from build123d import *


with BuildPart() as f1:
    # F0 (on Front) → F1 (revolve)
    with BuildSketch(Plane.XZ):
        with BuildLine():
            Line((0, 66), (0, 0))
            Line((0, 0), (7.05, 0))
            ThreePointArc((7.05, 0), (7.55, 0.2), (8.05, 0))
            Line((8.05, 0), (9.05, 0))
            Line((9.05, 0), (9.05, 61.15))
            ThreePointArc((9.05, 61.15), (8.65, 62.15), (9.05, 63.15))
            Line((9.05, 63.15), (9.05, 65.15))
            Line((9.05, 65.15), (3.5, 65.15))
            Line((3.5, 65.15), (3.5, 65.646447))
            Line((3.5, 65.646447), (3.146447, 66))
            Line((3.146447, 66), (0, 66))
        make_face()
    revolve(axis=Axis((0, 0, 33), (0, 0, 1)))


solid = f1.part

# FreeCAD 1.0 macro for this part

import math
import FreeCAD as App
import Part
import Sketcher

V = App.Vector
Q = App.Units.Quantity

doc = App.newDocument("Part")
body = doc.addObject("PartDesign::Body", "Body")

# Sketch on XZ plane
sketch1 = doc.addObject("Sketcher::SketchObject", "Sketch")
body.addObject(sketch1)
sketch1.AttachmentSupport = (doc.XZ_Plane, [""])
sketch1.MapMode = "FlatFace"
sketch1.addGeometry(Part.LineSegment(V(0, 66, 0), V(0, 0, 0)), False)
sketch1.addGeometry(Part.LineSegment(V(0, 0, 0), V(7.05, 0, 0)), False)
sketch1.addGeometry(Part.ArcOfCircle(Part.Circle(V(7.55, -0.525, 0), V(0, 0, 1), 0.725), math.radians(46.397181), math.radians(133.602819)), False)
sketch1.addGeometry(Part.LineSegment(V(8.05, 0, 0), V(9.05, 0, 0)), False)
sketch1.addGeometry(Part.LineSegment(V(9.05, 0, 0), V(9.05, 61.15, 0)), False)
sketch1.addGeometry(Part.ArcOfCircle(Part.Circle(V(10.1, 62.15, 0), V(0, 0, 1), 1.45), math.radians(136.397181), math.radians(223.602819)), False)
sketch1.addGeometry(Part.LineSegment(V(9.05, 63.15, 0), V(9.05, 65.15, 0)), False)
sketch1.addGeometry(Part.LineSegment(V(9.05, 65.15, 0), V(3.5, 65.15, 0)), False)
sketch1.addGeometry(Part.LineSegment(V(3.5, 65.15, 0), V(3.5, 65.646447, 0)), False)
sketch1.addGeometry(Part.LineSegment(V(3.5, 65.646447, 0), V(3.146447, 66, 0)), False)
sketch1.addGeometry(Part.LineSegment(V(3.146447, 66, 0), V(0, 66, 0)), False)
sketch1.addConstraint(Sketcher.Constraint("Coincident", 0, 2, 1, 1))
sketch1.addConstraint(Sketcher.Constraint("Coincident", 1, 2, 2, 2))
sketch1.addConstraint(Sketcher.Constraint("Coincident", 2, 1, 3, 1))
sketch1.addConstraint(Sketcher.Constraint("Coincident", 3, 2, 4, 1))
sketch1.addConstraint(Sketcher.Constraint("Coincident", 4, 2, 5, 2))
sketch1.addConstraint(Sketcher.Constraint("Coincident", 5, 1, 6, 1))
sketch1.addConstraint(Sketcher.Constraint("Coincident", 6, 2, 7, 1))
sketch1.addConstraint(Sketcher.Constraint("Coincident", 7, 2, 8, 1))
sketch1.addConstraint(Sketcher.Constraint("Coincident", 8, 2, 9, 1))
sketch1.addConstraint(Sketcher.Constraint("Coincident", 9, 2, 10, 1))
sketch1.addConstraint(Sketcher.Constraint("Coincident", 10, 2, 0, 1))
sketch1.addConstraint(Sketcher.Constraint("Vertical", 0))
sketch1.addConstraint(Sketcher.Constraint("Horizontal", 1))
sketch1.addConstraint(Sketcher.Constraint("Horizontal", 3))
sketch1.addConstraint(Sketcher.Constraint("Vertical", 4))
sketch1.addConstraint(Sketcher.Constraint("Vertical", 6))
sketch1.addConstraint(Sketcher.Constraint("Horizontal", 7))
sketch1.addConstraint(Sketcher.Constraint("Vertical", 8))
sketch1.addConstraint(Sketcher.Constraint("Horizontal", 10))
sketch1.addConstraint(Sketcher.Constraint("Coincident", 0, 2, -1, 1))
sketch1.addConstraint(Sketcher.Constraint("PointOnObject", 2, 1, -1))
sketch1.addConstraint(Sketcher.Constraint("Vertical", 4, 2, 5, 1))
sketch1.addConstraint(Sketcher.Constraint("DistanceX", 3, 1, 3, 2, Q("1 mm")))
sketch1.addConstraint(Sketcher.Constraint("DistanceY", 0, 2, 0, 1, Q("66 mm")))
sketch1.addConstraint(Sketcher.Constraint("DistanceY", 6, 1, 6, 2, Q("2 mm")))
sketch1.addConstraint(Sketcher.Constraint("Angle", 9, Q("135 deg")))
sketch1.addConstraint(Sketcher.Constraint("Radius", 5, Q("1.45 mm")))
sketch1.addConstraint(Sketcher.Constraint("Radius", 2, Q("0.725 mm")))
sketch1.addConstraint(Sketcher.Constraint("DistanceX", 1, 2, 2, 1, Q("1 mm")))
sketch1.addConstraint(Sketcher.Constraint("DistanceY", 4, 2, 5, 3, Q("1 mm")))
sketch1.addConstraint(Sketcher.Constraint("Distance", 9, Q("0.499999 mm")))
sketch1.addConstraint(Sketcher.Constraint("DistanceX", 1, 1, 1, 2, Q("7.05 mm")))
sketch1.addConstraint(Sketcher.Constraint("DistanceX", 7, 2, 7, 1, Q("5.55 mm")))
sketch1.addConstraint(Sketcher.Constraint("DistanceY", 4, 1, 4, 2, Q("61.15 mm")))
revolution = doc.addObject("PartDesign::Revolution", "Revolution")
body.addObject(revolution)
revolution.Profile = sketch1
revolution.ReferenceAxis = (sketch1, ["V_Axis"])
revolution.Angle = 360

doc.recompute()
